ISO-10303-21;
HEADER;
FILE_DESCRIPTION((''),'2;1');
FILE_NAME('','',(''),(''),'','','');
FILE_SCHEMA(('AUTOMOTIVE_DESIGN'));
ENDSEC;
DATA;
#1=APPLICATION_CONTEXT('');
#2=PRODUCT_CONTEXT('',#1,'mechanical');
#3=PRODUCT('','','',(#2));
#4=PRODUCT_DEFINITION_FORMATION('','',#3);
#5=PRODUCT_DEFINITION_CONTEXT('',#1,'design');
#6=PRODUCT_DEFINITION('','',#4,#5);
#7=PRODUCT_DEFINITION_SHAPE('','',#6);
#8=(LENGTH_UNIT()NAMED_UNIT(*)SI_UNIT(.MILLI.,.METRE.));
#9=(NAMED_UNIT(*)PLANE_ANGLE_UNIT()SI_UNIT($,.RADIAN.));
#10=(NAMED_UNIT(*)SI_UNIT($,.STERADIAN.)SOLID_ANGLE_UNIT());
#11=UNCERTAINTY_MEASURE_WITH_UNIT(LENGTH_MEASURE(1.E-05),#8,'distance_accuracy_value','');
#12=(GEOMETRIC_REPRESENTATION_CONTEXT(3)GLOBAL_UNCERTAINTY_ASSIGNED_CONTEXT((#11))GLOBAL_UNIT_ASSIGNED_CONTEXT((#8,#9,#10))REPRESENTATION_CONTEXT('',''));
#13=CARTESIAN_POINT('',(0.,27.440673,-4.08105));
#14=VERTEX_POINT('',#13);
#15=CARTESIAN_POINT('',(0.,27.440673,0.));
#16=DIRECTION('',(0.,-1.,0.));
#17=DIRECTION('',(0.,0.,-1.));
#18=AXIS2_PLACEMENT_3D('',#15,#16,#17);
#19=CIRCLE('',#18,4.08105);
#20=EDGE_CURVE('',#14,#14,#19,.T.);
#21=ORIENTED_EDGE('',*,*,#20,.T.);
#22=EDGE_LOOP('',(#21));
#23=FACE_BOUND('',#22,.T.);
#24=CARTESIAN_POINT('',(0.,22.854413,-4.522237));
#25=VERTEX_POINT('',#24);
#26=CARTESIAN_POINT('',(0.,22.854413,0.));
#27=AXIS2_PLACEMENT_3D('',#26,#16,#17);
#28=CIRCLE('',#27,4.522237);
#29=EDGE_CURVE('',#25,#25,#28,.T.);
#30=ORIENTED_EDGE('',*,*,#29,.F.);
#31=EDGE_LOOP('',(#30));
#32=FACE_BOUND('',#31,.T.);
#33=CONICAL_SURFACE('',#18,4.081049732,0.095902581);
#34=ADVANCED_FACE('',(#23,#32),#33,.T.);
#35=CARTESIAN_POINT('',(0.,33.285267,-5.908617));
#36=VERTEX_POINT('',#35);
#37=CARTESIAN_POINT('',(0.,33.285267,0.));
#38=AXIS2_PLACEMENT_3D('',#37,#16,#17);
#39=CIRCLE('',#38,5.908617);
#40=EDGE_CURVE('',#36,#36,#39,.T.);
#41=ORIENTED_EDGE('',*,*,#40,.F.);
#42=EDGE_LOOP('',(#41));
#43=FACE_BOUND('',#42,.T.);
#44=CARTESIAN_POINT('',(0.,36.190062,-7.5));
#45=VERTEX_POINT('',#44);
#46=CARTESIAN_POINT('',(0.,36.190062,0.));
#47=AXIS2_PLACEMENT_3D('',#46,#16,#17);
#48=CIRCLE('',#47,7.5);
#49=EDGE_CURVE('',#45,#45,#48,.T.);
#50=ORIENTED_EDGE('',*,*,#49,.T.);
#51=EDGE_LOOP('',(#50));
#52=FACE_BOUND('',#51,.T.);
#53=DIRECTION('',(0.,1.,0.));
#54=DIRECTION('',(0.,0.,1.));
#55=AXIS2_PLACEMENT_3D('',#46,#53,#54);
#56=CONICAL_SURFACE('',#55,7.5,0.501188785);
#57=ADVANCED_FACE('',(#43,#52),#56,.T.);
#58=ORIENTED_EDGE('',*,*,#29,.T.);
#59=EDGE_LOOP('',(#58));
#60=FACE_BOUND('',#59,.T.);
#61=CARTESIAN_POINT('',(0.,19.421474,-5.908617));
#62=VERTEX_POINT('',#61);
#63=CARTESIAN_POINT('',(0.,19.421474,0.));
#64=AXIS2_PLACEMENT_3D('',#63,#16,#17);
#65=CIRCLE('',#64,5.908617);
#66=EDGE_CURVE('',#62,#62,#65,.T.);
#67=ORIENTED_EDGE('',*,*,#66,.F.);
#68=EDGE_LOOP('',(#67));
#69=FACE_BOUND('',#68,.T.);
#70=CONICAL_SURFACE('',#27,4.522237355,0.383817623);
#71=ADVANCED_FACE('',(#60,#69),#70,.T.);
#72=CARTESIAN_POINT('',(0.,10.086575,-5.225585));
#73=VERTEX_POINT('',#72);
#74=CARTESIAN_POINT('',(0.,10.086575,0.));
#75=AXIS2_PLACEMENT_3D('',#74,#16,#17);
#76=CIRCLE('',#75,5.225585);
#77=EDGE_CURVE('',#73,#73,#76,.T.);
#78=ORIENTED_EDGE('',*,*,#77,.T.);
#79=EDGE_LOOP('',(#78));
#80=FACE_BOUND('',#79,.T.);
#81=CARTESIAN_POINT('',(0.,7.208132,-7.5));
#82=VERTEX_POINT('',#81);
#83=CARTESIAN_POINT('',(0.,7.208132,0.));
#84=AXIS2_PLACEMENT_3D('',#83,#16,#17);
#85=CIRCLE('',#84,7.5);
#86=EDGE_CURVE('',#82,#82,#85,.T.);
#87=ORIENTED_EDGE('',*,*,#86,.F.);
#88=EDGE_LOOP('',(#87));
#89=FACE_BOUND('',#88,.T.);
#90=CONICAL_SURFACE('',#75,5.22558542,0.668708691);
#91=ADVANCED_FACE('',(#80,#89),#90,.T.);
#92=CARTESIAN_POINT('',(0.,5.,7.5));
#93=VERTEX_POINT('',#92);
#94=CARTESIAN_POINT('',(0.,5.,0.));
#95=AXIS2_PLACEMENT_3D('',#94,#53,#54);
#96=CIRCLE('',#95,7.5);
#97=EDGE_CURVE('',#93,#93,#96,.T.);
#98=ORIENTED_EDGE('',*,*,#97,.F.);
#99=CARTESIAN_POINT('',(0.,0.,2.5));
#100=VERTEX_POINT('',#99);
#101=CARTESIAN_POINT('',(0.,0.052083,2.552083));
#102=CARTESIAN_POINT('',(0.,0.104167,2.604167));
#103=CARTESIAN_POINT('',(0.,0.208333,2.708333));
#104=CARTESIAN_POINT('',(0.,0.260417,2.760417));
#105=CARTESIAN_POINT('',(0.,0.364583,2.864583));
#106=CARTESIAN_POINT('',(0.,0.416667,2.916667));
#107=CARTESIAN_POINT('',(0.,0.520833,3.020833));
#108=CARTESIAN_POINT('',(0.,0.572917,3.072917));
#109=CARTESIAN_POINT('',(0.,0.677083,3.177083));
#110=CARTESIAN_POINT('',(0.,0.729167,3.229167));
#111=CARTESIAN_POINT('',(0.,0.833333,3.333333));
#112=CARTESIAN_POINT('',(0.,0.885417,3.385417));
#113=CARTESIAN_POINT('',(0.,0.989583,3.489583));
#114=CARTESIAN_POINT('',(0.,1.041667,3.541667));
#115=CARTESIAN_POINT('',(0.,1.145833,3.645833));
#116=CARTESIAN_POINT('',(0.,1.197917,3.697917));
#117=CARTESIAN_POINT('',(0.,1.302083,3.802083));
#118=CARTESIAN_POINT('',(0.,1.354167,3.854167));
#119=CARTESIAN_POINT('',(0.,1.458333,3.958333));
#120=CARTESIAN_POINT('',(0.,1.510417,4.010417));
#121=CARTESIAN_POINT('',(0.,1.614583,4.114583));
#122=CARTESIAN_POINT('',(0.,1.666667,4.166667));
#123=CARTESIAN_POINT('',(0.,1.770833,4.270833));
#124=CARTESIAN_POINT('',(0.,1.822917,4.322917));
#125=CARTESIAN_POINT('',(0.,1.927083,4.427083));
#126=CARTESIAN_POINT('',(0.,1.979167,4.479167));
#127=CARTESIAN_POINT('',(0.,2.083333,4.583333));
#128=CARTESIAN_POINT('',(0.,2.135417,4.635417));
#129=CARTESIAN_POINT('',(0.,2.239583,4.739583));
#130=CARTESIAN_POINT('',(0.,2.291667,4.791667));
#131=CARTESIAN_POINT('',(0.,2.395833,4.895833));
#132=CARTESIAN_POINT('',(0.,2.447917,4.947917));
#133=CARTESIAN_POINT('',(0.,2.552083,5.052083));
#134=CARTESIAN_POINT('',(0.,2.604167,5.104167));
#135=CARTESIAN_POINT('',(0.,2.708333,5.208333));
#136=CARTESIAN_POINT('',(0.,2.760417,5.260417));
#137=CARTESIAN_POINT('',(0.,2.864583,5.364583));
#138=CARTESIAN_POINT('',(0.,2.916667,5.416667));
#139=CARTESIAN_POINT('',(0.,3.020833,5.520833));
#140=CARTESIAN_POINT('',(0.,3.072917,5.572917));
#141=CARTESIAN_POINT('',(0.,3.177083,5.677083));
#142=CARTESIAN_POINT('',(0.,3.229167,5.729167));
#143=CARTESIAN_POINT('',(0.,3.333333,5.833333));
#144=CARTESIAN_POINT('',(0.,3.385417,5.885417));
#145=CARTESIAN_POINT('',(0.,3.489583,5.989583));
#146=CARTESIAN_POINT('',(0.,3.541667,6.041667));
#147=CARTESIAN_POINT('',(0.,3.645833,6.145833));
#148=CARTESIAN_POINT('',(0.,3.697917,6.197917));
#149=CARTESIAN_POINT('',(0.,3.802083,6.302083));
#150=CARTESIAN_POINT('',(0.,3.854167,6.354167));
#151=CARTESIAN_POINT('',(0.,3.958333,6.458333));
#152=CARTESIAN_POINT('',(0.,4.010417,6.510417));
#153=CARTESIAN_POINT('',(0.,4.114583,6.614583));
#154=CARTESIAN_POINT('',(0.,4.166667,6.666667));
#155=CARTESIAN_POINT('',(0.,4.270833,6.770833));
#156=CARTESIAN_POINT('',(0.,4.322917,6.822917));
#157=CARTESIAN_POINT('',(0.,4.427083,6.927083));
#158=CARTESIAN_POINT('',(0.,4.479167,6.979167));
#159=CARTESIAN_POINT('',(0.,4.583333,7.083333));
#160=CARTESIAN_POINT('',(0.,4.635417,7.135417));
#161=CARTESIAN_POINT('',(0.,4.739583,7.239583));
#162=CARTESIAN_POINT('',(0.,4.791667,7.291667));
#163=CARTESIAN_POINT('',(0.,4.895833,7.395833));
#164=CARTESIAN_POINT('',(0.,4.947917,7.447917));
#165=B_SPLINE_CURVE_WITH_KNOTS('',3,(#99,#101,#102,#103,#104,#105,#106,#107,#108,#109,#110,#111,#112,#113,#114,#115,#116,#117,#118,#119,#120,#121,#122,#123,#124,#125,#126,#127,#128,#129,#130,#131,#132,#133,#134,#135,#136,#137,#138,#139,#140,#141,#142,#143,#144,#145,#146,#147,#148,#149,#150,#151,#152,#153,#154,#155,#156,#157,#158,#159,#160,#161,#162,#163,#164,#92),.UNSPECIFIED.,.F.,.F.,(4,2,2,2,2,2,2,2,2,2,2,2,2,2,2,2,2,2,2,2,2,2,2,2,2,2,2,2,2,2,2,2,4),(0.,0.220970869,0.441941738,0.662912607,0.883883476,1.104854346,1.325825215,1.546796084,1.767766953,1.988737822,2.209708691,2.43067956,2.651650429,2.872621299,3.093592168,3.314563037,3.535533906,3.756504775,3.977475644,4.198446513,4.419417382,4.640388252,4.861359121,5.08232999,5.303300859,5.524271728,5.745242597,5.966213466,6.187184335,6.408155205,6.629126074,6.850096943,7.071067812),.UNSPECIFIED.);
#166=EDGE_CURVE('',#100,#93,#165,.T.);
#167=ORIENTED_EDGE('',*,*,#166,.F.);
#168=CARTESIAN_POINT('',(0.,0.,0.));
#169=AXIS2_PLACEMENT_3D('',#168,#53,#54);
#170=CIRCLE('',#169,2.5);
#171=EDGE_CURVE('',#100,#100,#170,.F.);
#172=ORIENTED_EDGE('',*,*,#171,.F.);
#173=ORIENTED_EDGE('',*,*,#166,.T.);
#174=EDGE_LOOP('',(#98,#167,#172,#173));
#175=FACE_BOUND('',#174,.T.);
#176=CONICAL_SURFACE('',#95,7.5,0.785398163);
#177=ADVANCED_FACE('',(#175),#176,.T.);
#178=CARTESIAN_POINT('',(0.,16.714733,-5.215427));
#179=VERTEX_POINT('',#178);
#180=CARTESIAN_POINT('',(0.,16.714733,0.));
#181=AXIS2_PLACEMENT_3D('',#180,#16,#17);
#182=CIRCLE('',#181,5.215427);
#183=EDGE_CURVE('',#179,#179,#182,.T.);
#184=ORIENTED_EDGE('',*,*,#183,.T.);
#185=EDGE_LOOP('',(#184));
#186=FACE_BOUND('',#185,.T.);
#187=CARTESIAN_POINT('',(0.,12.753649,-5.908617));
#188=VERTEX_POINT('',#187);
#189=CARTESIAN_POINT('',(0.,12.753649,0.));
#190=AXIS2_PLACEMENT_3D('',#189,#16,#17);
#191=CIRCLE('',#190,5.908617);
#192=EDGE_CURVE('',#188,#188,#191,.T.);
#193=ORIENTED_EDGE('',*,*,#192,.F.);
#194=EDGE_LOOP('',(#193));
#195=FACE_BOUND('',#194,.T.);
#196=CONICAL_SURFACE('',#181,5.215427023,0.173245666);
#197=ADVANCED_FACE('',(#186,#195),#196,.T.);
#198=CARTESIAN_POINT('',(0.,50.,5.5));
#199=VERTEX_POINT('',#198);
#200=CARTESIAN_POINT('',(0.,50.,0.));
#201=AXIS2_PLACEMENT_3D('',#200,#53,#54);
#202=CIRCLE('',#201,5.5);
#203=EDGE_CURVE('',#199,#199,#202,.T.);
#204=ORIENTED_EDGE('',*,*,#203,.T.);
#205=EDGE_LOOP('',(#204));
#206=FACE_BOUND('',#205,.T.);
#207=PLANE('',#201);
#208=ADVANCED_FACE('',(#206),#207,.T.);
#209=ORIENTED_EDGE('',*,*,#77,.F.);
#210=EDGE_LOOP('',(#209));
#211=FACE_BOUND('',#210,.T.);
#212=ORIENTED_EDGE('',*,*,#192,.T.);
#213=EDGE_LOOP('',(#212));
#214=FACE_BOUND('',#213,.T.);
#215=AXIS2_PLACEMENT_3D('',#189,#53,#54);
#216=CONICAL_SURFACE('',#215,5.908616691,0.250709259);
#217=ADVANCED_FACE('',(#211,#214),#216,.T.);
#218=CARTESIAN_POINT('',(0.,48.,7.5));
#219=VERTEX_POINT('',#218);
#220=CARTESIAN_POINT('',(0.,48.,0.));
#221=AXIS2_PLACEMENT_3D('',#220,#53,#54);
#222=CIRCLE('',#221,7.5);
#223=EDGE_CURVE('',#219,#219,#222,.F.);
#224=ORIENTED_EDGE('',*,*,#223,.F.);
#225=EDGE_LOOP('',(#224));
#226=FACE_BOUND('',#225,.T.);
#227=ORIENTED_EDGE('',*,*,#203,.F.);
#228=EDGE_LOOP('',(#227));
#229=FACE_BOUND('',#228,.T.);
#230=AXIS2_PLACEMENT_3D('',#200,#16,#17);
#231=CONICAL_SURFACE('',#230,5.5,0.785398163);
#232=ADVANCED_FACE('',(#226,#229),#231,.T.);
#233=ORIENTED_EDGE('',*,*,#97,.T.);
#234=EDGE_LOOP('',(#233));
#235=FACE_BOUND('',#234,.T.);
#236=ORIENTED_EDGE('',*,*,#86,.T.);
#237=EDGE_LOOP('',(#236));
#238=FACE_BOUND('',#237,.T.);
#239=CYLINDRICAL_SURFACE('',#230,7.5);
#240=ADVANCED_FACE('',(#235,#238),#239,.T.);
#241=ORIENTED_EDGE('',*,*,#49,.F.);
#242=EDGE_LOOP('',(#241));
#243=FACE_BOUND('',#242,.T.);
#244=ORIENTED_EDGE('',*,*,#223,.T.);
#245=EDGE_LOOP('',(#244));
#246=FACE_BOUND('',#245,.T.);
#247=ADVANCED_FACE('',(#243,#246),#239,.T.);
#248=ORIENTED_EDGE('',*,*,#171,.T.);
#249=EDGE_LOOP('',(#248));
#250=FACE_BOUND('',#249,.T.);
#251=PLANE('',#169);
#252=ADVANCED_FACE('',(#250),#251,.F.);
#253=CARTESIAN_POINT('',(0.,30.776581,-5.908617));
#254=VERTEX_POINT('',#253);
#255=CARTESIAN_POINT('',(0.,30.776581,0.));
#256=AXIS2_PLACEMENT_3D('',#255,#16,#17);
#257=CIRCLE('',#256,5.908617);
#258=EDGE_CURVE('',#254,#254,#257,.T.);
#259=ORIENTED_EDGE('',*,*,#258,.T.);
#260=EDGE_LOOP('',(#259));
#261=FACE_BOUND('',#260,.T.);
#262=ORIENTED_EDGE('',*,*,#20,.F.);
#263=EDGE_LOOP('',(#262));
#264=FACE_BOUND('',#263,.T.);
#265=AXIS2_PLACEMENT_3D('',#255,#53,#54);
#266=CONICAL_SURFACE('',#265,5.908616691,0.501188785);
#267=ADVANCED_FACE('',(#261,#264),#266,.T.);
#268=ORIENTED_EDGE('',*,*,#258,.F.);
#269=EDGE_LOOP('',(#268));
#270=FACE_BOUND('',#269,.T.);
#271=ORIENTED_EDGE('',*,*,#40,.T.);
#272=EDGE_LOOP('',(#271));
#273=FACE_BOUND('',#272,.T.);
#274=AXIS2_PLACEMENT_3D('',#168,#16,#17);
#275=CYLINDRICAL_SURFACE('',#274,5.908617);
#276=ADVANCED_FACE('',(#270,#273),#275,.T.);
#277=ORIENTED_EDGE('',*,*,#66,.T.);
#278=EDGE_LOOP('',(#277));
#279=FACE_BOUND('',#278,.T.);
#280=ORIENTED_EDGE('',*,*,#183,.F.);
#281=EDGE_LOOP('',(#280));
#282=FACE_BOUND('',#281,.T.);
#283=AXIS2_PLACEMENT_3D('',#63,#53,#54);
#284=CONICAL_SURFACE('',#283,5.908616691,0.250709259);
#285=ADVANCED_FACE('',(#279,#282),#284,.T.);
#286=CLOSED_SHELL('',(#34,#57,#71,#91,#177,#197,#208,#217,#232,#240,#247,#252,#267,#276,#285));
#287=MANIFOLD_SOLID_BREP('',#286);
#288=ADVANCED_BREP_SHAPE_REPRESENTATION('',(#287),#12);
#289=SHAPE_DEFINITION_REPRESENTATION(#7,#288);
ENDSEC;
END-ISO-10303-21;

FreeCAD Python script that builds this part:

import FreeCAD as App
import Part
import Sketcher


def edges_at(feature, points):
    """Names of the edges that pass closest to the given points."""
    edges = feature.Shape.Edges
    near = lambda p: min(range(len(edges)), key=lambda i: edges[i].distToShape(Part.Vertex(*p))[0])
    return sorted({f"Edge{near(p) + 1}" for p in points})

doc = App.newDocument("Part")
body = doc.addObject("PartDesign::Body", "Body")

# Sketch on XZ plane
sketch1 = body.newObject("Sketcher::SketchObject", "Sketch")
sketch1.AttachmentSupport = (doc.getObject("XZ_Plane"), [""])
sketch1.MapMode = "FlatFace"
sketch1.addGeometry(Part.Circle(App.Vector(0, 0, 0), App.Vector(0, 0, 1), 7.5), False)
sketch1.addConstraint([
    Sketcher.Constraint("Coincident", 0, 3, -1, 1),
    Sketcher.Constraint("Diameter", 0, 15.0),
])
pad1 = body.newObject("PartDesign::Pad", "Pad")
pad1.Profile = sketch1
pad1.Length = 50
pad1.Reversed = True
doc.recompute()

chamfer = body.newObject("PartDesign::Chamfer", "Chamfer")
chamfer.Base = (pad1, edges_at(pad1, [(0, 0, -7.5)]))
chamfer.Size = 5
doc.recompute()

chamfer2 = body.newObject("PartDesign::Chamfer", "Chamfer001")
chamfer2.Base = (chamfer, edges_at(chamfer, [(0, 50, -7.5)]))
chamfer2.Size = 2

# Sketch on XY plane
sketch2 = body.newObject("Sketcher::SketchObject", "Sketch001")
sketch2.AttachmentSupport = (doc.getObject("XY_Plane"), [""])
sketch2.MapMode = "FlatFace"
sketch2.addGeometry([
    Part.LineSegment(App.Vector(7.5, 36.190062, 0), App.Vector(5.908617, 33.285267, 0)),  # 0
    Part.LineSegment(App.Vector(5.908617, 33.285267, 0), App.Vector(5.908617, 30.776581, 0)),  # 1
    Part.LineSegment(App.Vector(5.908617, 30.776581, 0), App.Vector(4.08105, 27.440673, 0)),  # 2
    Part.LineSegment(App.Vector(4.08105, 27.440673, 0), App.Vector(4.522237, 22.854413, 0)),  # 3
    Part.LineSegment(App.Vector(4.522237, 22.854413, 0), App.Vector(5.908617, 19.421474, 0)),  # 4
    Part.LineSegment(App.Vector(5.908617, 19.421474, 0), App.Vector(5.215427, 16.714733, 0)),  # 5
    Part.LineSegment(App.Vector(5.215427, 16.714733, 0), App.Vector(5.908617, 12.753649, 0)),  # 6
    Part.LineSegment(App.Vector(5.908617, 12.753649, 0), App.Vector(5.225585, 10.086575, 0)),  # 7
    Part.LineSegment(App.Vector(5.225585, 10.086575, 0), App.Vector(7.5, 7.208132, 0)),  # 8
    Part.LineSegment(App.Vector(7.5, 7.208132, 0), App.Vector(18.320013, 16.714733, 0)),  # 9
    Part.LineSegment(App.Vector(18.320013, 16.714733, 0), App.Vector(7.5, 36.190062, 0)),  # 10
], False)
sketch2.addConstraint([
    Sketcher.Constraint("Coincident", 0, 2, 1, 1),
    Sketcher.Constraint("Coincident", 1, 2, 2, 1),
    Sketcher.Constraint("Coincident", 2, 2, 3, 1),
    Sketcher.Constraint("Coincident", 3, 2, 4, 1),
    Sketcher.Constraint("Coincident", 4, 2, 5, 1),
    Sketcher.Constraint("Coincident", 5, 2, 6, 1),
    Sketcher.Constraint("Coincident", 6, 2, 7, 1),
    Sketcher.Constraint("Coincident", 7, 2, 8, 1),
    Sketcher.Constraint("Coincident", 8, 2, 9, 1),
    Sketcher.Constraint("Coincident", 9, 2, 10, 1),
    Sketcher.Constraint("Coincident", 10, 2, 0, 1),
    Sketcher.Constraint("Vertical", 1),
    Sketcher.Constraint("Parallel", 0, 2),
    Sketcher.Constraint("Parallel", 5, 7),
    Sketcher.Constraint("Horizontal", 5, 2, 9, 2),
    Sketcher.Constraint("Vertical", 1, 2, 4, 2),
    Sketcher.Constraint("Vertical", 4, 2, 6, 2),
    Sketcher.Constraint("Vertical", 8, 2, 10, 2),
    Sketcher.Constraint("DistanceX", -1, 1, 8, 2, 7.5),
    Sketcher.Constraint("DistanceY", 4, 2, 2, 2, 8.0192),
    Sketcher.Constraint("DistanceY", 7, 2, 4, 2, 9.334899),
    Sketcher.Constraint("DistanceY", 8, 2, 5, 2, 9.506601),
    Sketcher.Constraint("Distance", 0, 3.312149),
    Sketcher.Constraint("Distance", 2, 3.803719),
    Sketcher.Constraint("Distance", 6, 4.021281),
    Sketcher.Constraint("Distance", 8, 3.668569),
    Sketcher.Constraint("Distance", 9, 14.40306),
    Sketcher.Constraint("DistanceY", 1, 2, 1, 1, 2.508686),
    Sketcher.Constraint("DistanceY", -1, 1, 1, 2, 30.776581),
    Sketcher.Constraint("DistanceX", -1, 1, 2, 2, 4.08105),
    Sketcher.Constraint("DistanceY", -1, 1, 6, 2, 12.753649),
    Sketcher.Constraint("DistanceY", 3, 2, 2, 2, 4.58626),
    Sketcher.Constraint("DistanceX", 3, 2, 1, 2, 1.386379),
])
groove = body.newObject("PartDesign::Groove", "Groove")
groove.Profile = sketch2
groove.ReferenceAxis = (sketch2, ["V_Axis"])
groove.Angle = 360

doc.recompute()
